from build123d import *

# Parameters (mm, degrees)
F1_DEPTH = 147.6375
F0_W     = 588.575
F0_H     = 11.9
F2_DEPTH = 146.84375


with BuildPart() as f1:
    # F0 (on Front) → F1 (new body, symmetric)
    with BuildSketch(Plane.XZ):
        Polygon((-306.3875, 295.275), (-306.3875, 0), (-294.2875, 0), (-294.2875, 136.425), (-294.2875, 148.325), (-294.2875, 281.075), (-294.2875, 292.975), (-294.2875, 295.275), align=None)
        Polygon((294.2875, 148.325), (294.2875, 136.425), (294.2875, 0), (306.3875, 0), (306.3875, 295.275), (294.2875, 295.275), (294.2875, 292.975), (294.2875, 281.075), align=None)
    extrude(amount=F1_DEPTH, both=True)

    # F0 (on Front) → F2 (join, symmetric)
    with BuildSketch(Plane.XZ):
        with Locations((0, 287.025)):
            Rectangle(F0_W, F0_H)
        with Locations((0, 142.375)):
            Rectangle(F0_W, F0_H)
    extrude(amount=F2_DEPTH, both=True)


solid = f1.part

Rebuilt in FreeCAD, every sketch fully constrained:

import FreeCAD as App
import Part
import Sketcher

V = App.Vector
Q = App.Units.Quantity


def add_polygon(sketch, points):
    """Adds a closed chain of lines whose ends are joined by coincident constraints."""
    first, n = sketch.GeometryCount, len(points)
    for a, b in zip(points, points[1:] + points[:1]):
        sketch.addGeometry(Part.LineSegment(App.Vector(*a, 0), App.Vector(*b, 0)), False)
    for i in range(n):
        sketch.addConstraint(Sketcher.Constraint("Coincident", first + i, 2, first + (i + 1) % n, 1))

doc = App.newDocument("Part")
body = doc.addObject("PartDesign::Body", "Body")
body.AllowCompound = True

# Sketch on XZ plane
sketch1 = body.newObject("Sketcher::SketchObject", "Sketch")
sketch1.AttachmentSupport = (doc.getObject("XZ_Plane"), [""])
sketch1.MapMode = "FlatFace"
add_polygon(sketch1, [(-306.3875, 295.275), (-306.3875, 0), (-294.2875, 0), (-294.2875, 295.275)])  # lines 0-3
add_polygon(sketch1, [(294.2875, 0), (306.3875, 0), (306.3875, 295.275), (294.2875, 295.275)])  # lines 4-7
sketch1.addConstraint(Sketcher.Constraint("Vertical", 0))
sketch1.addConstraint(Sketcher.Constraint("Horizontal", 1))
sketch1.addConstraint(Sketcher.Constraint("Vertical", 2))
sketch1.addConstraint(Sketcher.Constraint("Horizontal", 3))
sketch1.addConstraint(Sketcher.Constraint("Horizontal", 4))
sketch1.addConstraint(Sketcher.Constraint("Vertical", 5))
sketch1.addConstraint(Sketcher.Constraint("Horizontal", 6))
sketch1.addConstraint(Sketcher.Constraint("Vertical", 7))
sketch1.addConstraint(Sketcher.Constraint("Symmetric", 0, 2, 4, 2, -1, 1))
sketch1.addConstraint(Sketcher.Constraint("Symmetric", 2, 2, 6, 2, -2))
sketch1.addConstraint(Sketcher.Constraint("PointOnObject", 0, 2, -1))
sketch1.addConstraint(Sketcher.Constraint("DistanceY", 0, 2, 0, 1, Q("11.625 in")))
sketch1.addConstraint(Sketcher.Constraint("DistanceX", 0, 2, -1, 1, Q("12.0625 in")))
sketch1.addConstraint(Sketcher.Constraint("DistanceX", 1, 1, 1, 2, Q("12.1 mm")))
pad1 = body.newObject("PartDesign::Pad", "Pad")
pad1.Profile = sketch1
pad1.Length = Q("11.625 in")
pad1.Midplane = True

# Sketch on XZ plane
sketch2 = body.newObject("Sketcher::SketchObject", "Sketch001")
sketch2.AttachmentSupport = (doc.getObject("XZ_Plane"), [""])
sketch2.MapMode = "FlatFace"
add_polygon(sketch2, [(-294.2875, 292.975), (-294.2875, 281.075), (294.2875, 281.075), (294.2875, 292.975)])  # lines 0-3
add_polygon(sketch2, [(-294.2875, 148.325), (-294.2875, 136.425), (294.2875, 136.425), (294.2875, 148.325)])  # lines 4-7
sketch2.addConstraint(Sketcher.Constraint("Vertical", 0))
sketch2.addConstraint(Sketcher.Constraint("Horizontal", 1))
sketch2.addConstraint(Sketcher.Constraint("Vertical", 2))
sketch2.addConstraint(Sketcher.Constraint("Horizontal", 3))
sketch2.addConstraint(Sketcher.Constraint("Vertical", 4))
sketch2.addConstraint(Sketcher.Constraint("Horizontal", 5))
sketch2.addConstraint(Sketcher.Constraint("Vertical", 6))
sketch2.addConstraint(Sketcher.Constraint("Horizontal", 7))
sketch2.addConstraint(Sketcher.Constraint("Vertical", 3, 2, 4, 2))
sketch2.addConstraint(Sketcher.Constraint("Vertical", 2, 2, 5, 2))
sketch2.addConstraint(Sketcher.Constraint("Equal", 2, 4))
sketch2.addConstraint(Sketcher.Constraint("DistanceX", 1, 1, 1, 2, Q("588.575 mm")))
sketch2.addConstraint(Sketcher.Constraint("DistanceY", 0, 2, 0, 1, Q("11.9 mm")))
sketch2.addConstraint(Sketcher.Constraint("DistanceX", 0, 2, -1, 1, Q("294.2875 mm")))
sketch2.addConstraint(Sketcher.Constraint("DistanceY", -1, 1, 0, 2, Q("281.075 mm")))
sketch2.addConstraint(Sketcher.Constraint("DistanceY", -1, 1, 4, 2, Q("136.425 mm")))
pad2 = body.newObject("PartDesign::Pad", "Pad001")
pad2.Profile = sketch2
pad2.Length = Q("11.5625 in")
pad2.Midplane = True

doc.recompute()
